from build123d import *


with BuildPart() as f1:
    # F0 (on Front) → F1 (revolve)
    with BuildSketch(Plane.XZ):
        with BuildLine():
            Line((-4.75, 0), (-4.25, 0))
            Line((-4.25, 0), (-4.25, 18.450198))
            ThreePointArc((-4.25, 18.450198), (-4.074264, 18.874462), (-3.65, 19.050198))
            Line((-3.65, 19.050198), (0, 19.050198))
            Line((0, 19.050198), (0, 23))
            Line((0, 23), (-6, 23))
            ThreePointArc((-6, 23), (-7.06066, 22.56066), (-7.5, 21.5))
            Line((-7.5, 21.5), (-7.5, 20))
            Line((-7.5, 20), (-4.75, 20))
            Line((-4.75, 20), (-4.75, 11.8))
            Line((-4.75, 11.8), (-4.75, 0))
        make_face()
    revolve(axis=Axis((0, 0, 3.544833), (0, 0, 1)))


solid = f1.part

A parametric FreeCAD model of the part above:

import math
import FreeCAD as App
import Part
import Sketcher
Q = App.Units.Quantity

doc = App.newDocument("Part")
body = doc.addObject("PartDesign::Body", "Body")

sketch1 = body.newObject("Sketcher::SketchObject", "Sketch")
sketch1.AttachmentSupport = (doc.getObject("XZ_Plane"), [""])
sketch1.MapMode = "FlatFace"
sketch1.addGeometry([
    Part.LineSegment(App.Vector(-4.8, 0, 0), App.Vector(-4.2, 0, 0)),
    Part.LineSegment(App.Vector(-4.2, 0, 0), App.Vector(-4.2, 18.5, 0)),
    Part.ArcOfCircle(Part.Circle(App.Vector(-3.6, 18.5, 0), App.Vector(0, 0, 1), 0.6), math.radians(90), math.radians(180)),
    Part.LineSegment(App.Vector(-3.6, 19.1, 0), App.Vector(0, 19.1, 0)),
    Part.LineSegment(App.Vector(0, 19.1, 0), App.Vector(0, 23, 0)),
    Part.LineSegment(App.Vector(0, 23, 0), App.Vector(-6, 23, 0)),
    Part.ArcOfCircle(Part.Circle(App.Vector(-6, 21.5, 0), App.Vector(0, 0, 1), 1.5), math.radians(90), math.radians(180)),
    Part.LineSegment(App.Vector(-7.5, 21.5, 0), App.Vector(-7.5, 20, 0)),
    Part.LineSegment(App.Vector(-7.5, 20, 0), App.Vector(-4.8, 20, 0)),
    Part.LineSegment(App.Vector(-4.8, 20, 0), App.Vector(-4.8, 0, 0)),
], False)
sketch1.addConstraint([
    Sketcher.Constraint("Coincident", 0, 2, 1, 1),
    Sketcher.Constraint("Tangent", 1, 2, 2, 2),
    Sketcher.Constraint("Tangent", 2, 1, 3, 1),
    Sketcher.Constraint("Coincident", 3, 2, 4, 1),
    Sketcher.Constraint("Coincident", 4, 2, 5, 1),
    Sketcher.Constraint("Tangent", 5, 2, 6, 1),
    Sketcher.Constraint("Tangent", 6, 2, 7, 1),
    Sketcher.Constraint("Coincident", 7, 2, 8, 1),
    Sketcher.Constraint("Coincident", 8, 2, 9, 1),
    Sketcher.Constraint("Coincident", 9, 2, 0, 1),
    Sketcher.Constraint("Horizontal", 0),
    Sketcher.Constraint("Vertical", 1),
    Sketcher.Constraint("Horizontal", 3),
    Sketcher.Constraint("Vertical", 4),
    Sketcher.Constraint("Horizontal", 5),
    Sketcher.Constraint("Vertical", 7),
    Sketcher.Constraint("Horizontal", 8),
    Sketcher.Constraint("Vertical", 9),
    Sketcher.Constraint("PointOnObject", 0, 2, -1),
    Sketcher.Constraint("PointOnObject", 3, 2, -2),
    Sketcher.Constraint("Radius", 2, Q("0.6 mm")),
    Sketcher.Constraint("Radius", 6, Q("1.500001 mm")),
    Sketcher.Constraint("DistanceX", 5, 2, 5, 1, Q("6 mm")),
    Sketcher.Constraint("DistanceY", 9, 2, 9, 1, Q("20 mm")),
    Sketcher.Constraint("DistanceX", 0, 1, 0, 2, Q("0.5 mm")),
    Sketcher.Constraint("DistanceY", 7, 2, 7, 1, Q("1.5 mm")),
    Sketcher.Constraint("DistanceX", 3, 1, 3, 2, Q("3.65 mm")),
    Sketcher.Constraint("DistanceY", 1, 1, 1, 2, Q("18.450198 mm")),
])
revolution = body.newObject("PartDesign::Revolution", "Revolution")
revolution.Profile = sketch1
revolution.ReferenceAxis = (sketch1, ["V_Axis"])
revolution.Angle = 360

doc.recompute()
